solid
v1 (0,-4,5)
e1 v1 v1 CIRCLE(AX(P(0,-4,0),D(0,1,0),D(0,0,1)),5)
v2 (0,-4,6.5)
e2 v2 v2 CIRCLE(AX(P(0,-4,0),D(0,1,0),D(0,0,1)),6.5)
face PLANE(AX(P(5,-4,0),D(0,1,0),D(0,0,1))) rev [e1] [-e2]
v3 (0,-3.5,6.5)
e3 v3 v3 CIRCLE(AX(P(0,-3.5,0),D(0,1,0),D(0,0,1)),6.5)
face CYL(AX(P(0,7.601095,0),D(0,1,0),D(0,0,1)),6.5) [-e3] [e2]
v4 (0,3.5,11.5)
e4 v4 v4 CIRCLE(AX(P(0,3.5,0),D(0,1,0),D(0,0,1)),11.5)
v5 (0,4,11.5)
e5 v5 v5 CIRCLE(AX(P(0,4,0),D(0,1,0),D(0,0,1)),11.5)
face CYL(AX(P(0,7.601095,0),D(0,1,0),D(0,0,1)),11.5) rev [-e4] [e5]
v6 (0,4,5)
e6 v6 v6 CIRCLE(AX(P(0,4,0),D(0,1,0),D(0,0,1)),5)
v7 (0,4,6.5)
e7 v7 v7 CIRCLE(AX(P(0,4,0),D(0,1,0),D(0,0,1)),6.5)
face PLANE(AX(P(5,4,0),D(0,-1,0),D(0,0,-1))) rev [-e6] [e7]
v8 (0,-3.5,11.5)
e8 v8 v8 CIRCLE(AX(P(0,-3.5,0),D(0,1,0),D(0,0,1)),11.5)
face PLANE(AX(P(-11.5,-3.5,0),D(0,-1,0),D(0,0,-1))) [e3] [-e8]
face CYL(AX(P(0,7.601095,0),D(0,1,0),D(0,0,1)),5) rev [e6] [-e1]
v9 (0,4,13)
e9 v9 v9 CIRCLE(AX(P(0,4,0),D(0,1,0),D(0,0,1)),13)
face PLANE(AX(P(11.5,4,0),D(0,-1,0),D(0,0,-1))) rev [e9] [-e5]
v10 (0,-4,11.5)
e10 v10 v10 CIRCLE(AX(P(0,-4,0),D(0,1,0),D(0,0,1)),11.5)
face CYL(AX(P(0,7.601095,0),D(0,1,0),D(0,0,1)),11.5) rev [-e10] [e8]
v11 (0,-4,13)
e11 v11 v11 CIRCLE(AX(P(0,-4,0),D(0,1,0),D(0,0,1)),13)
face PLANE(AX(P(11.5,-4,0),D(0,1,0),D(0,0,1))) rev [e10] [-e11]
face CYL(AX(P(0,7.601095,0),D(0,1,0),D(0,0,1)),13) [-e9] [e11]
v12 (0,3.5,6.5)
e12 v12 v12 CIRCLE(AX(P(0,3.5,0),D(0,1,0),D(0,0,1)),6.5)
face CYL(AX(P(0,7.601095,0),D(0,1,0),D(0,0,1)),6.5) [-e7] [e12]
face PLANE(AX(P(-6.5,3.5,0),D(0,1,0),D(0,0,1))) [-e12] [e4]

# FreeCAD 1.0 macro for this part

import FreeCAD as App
import Part
import Sketcher
Q = App.Units.Quantity


def add_polygon(sketch, points):
    """Adds a closed chain of lines whose ends are joined by coincident constraints."""
    first, n = sketch.GeometryCount, len(points)
    for a, b in zip(points, points[1:] + points[:1]):
        sketch.addGeometry(Part.LineSegment(App.Vector(*a, 0), App.Vector(*b, 0)), False)
    for i in range(n):
        sketch.addConstraint(Sketcher.Constraint("Coincident", first + i, 2, first + (i + 1) % n, 1))

doc = App.newDocument("Part")
body = doc.addObject("PartDesign::Body", "Body")
body.AllowCompound = True

sketch1 = body.newObject("Sketcher::SketchObject", "Sketch")
sketch1.AttachmentSupport = (doc.getObject("XY_Plane"), [""])
sketch1.MapMode = "FlatFace"
add_polygon(sketch1, [(5, 4), (5, -4), (6.5, -4), (6.5, 4)])
add_polygon(sketch1, [(11.5, 4), (11.5, -4), (13, -4), (13, 4)])
sketch1.addConstraint(Sketcher.Constraint("Vertical", 0))
sketch1.addConstraint(Sketcher.Constraint("Horizontal", 1))
sketch1.addConstraint(Sketcher.Constraint("Vertical", 2))
sketch1.addConstraint(Sketcher.Constraint("Horizontal", 3))
sketch1.addConstraint(Sketcher.Constraint("Vertical", 4))
sketch1.addConstraint(Sketcher.Constraint("Horizontal", 5))
sketch1.addConstraint(Sketcher.Constraint("Vertical", 6))
sketch1.addConstraint(Sketcher.Constraint("Horizontal", 7))
sketch1.addConstraint(Sketcher.Constraint("Horizontal", 1, 2, 4, 2))
sketch1.addConstraint(Sketcher.Constraint("Horizontal", 3, 2, 6, 2))
sketch1.addConstraint(Sketcher.Constraint("Equal", 3, 5))
sketch1.addConstraint(Sketcher.Constraint("DistanceY", 0, 2, 0, 1, Q("8 mm")))
sketch1.addConstraint(Sketcher.Constraint("DistanceX", 1, 1, 1, 2, Q("1.5 mm")))
sketch1.addConstraint(Sketcher.Constraint("DistanceX", -1, 1, 0, 2, Q("5 mm")))
sketch1.addConstraint(Sketcher.Constraint("DistanceY", 0, 2, -1, 1, Q("4 mm")))
sketch1.addConstraint(Sketcher.Constraint("DistanceX", -1, 1, 5, 2, Q("13 mm")))
revolution = body.newObject("PartDesign::Revolution", "Revolution")
revolution.Profile = sketch1
revolution.ReferenceAxis = (sketch1, ["V_Axis"])
revolution.Angle = 360

sketch2 = body.newObject("Sketcher::SketchObject", "Sketch001")
sketch2.AttachmentSupport = (doc.getObject("XY_Plane"), [""])
sketch2.MapMode = "FlatFace"
add_polygon(sketch2, [(-11.5, 3.5), (-11.5, -3.5), (-6.5, -3.5), (-6.5, 3.5)])
sketch2.addConstraint(Sketcher.Constraint("Vertical", 0))
sketch2.addConstraint(Sketcher.Constraint("Horizontal", 1))
sketch2.addConstraint(Sketcher.Constraint("Vertical", 2))
sketch2.addConstraint(Sketcher.Constraint("Horizontal", 3))
sketch2.addConstraint(Sketcher.Constraint("DistanceX", 1, 1, 1, 2, Q("5 mm")))
sketch2.addConstraint(Sketcher.Constraint("DistanceY", 0, 2, 0, 1, Q("7 mm")))
sketch2.addConstraint(Sketcher.Constraint("DistanceX", 0, 2, -1, 1, Q("11.5 mm")))
sketch2.addConstraint(Sketcher.Constraint("DistanceY", 0, 2, -1, 1, Q("3.5 mm")))
revolution2 = body.newObject("PartDesign::Revolution", "Revolution001")
revolution2.Profile = sketch2
revolution2.ReferenceAxis = (sketch2, ["V_Axis"])
revolution2.Angle = 360

doc.recompute()
